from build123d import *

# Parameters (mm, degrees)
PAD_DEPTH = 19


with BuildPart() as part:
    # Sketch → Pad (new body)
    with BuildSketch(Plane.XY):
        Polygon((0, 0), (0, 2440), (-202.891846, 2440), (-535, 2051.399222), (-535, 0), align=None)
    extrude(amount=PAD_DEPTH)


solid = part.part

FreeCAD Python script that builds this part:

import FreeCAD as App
import Part
import Sketcher
Q = App.Units.Quantity


def add_polygon(sketch, points):
    """Adds a closed chain of lines whose ends are joined by coincident constraints."""
    first, n = sketch.GeometryCount, len(points)
    for a, b in zip(points, points[1:] + points[:1]):
        sketch.addGeometry(Part.LineSegment(App.Vector(*a, 0), App.Vector(*b, 0)), False)
    for i in range(n):
        sketch.addConstraint(Sketcher.Constraint("Coincident", first + i, 2, first + (i + 1) % n, 1))

doc = App.newDocument("Part")
body = doc.addObject("PartDesign::Body", "Body")

# Sketch on XY plane
sketch1 = doc.addObject("Sketcher::SketchObject", "Sketch")
body.addObject(sketch1)
sketch1.AttachmentSupport = (doc.XY_Plane, [""])
sketch1.MapMode = "FlatFace"
add_polygon(sketch1, [(0, 0), (0, 2440), (-203, 2440), (-535, 2051), (-535, 0)])  # lines 0-4
sketch1.addConstraint(Sketcher.Constraint("Vertical", 0))
sketch1.addConstraint(Sketcher.Constraint("Horizontal", 1))
sketch1.addConstraint(Sketcher.Constraint("Vertical", 3))
sketch1.addConstraint(Sketcher.Constraint("Horizontal", 4))
sketch1.addConstraint(Sketcher.Constraint("Coincident", 4, 2, -1, 1))
sketch1.addConstraint(Sketcher.Constraint("DistanceX", 4, 1, 4, 2, Q("535 mm")))
sketch1.addConstraint(Sketcher.Constraint("DistanceY", 0, 1, 0, 2, Q("2440 mm")))
sketch1.addConstraint(Sketcher.Constraint("DistanceX", 1, 2, 1, 1, Q("202.891846 mm")))
sketch1.addConstraint(Sketcher.Constraint("DistanceY", 3, 2, 3, 1, Q("2051.399222 mm")))
pad1 = doc.addObject("PartDesign::Pad", "Pad")
body.addObject(pad1)
pad1.Profile = sketch1
pad1.Length = 19

doc.recompute()
